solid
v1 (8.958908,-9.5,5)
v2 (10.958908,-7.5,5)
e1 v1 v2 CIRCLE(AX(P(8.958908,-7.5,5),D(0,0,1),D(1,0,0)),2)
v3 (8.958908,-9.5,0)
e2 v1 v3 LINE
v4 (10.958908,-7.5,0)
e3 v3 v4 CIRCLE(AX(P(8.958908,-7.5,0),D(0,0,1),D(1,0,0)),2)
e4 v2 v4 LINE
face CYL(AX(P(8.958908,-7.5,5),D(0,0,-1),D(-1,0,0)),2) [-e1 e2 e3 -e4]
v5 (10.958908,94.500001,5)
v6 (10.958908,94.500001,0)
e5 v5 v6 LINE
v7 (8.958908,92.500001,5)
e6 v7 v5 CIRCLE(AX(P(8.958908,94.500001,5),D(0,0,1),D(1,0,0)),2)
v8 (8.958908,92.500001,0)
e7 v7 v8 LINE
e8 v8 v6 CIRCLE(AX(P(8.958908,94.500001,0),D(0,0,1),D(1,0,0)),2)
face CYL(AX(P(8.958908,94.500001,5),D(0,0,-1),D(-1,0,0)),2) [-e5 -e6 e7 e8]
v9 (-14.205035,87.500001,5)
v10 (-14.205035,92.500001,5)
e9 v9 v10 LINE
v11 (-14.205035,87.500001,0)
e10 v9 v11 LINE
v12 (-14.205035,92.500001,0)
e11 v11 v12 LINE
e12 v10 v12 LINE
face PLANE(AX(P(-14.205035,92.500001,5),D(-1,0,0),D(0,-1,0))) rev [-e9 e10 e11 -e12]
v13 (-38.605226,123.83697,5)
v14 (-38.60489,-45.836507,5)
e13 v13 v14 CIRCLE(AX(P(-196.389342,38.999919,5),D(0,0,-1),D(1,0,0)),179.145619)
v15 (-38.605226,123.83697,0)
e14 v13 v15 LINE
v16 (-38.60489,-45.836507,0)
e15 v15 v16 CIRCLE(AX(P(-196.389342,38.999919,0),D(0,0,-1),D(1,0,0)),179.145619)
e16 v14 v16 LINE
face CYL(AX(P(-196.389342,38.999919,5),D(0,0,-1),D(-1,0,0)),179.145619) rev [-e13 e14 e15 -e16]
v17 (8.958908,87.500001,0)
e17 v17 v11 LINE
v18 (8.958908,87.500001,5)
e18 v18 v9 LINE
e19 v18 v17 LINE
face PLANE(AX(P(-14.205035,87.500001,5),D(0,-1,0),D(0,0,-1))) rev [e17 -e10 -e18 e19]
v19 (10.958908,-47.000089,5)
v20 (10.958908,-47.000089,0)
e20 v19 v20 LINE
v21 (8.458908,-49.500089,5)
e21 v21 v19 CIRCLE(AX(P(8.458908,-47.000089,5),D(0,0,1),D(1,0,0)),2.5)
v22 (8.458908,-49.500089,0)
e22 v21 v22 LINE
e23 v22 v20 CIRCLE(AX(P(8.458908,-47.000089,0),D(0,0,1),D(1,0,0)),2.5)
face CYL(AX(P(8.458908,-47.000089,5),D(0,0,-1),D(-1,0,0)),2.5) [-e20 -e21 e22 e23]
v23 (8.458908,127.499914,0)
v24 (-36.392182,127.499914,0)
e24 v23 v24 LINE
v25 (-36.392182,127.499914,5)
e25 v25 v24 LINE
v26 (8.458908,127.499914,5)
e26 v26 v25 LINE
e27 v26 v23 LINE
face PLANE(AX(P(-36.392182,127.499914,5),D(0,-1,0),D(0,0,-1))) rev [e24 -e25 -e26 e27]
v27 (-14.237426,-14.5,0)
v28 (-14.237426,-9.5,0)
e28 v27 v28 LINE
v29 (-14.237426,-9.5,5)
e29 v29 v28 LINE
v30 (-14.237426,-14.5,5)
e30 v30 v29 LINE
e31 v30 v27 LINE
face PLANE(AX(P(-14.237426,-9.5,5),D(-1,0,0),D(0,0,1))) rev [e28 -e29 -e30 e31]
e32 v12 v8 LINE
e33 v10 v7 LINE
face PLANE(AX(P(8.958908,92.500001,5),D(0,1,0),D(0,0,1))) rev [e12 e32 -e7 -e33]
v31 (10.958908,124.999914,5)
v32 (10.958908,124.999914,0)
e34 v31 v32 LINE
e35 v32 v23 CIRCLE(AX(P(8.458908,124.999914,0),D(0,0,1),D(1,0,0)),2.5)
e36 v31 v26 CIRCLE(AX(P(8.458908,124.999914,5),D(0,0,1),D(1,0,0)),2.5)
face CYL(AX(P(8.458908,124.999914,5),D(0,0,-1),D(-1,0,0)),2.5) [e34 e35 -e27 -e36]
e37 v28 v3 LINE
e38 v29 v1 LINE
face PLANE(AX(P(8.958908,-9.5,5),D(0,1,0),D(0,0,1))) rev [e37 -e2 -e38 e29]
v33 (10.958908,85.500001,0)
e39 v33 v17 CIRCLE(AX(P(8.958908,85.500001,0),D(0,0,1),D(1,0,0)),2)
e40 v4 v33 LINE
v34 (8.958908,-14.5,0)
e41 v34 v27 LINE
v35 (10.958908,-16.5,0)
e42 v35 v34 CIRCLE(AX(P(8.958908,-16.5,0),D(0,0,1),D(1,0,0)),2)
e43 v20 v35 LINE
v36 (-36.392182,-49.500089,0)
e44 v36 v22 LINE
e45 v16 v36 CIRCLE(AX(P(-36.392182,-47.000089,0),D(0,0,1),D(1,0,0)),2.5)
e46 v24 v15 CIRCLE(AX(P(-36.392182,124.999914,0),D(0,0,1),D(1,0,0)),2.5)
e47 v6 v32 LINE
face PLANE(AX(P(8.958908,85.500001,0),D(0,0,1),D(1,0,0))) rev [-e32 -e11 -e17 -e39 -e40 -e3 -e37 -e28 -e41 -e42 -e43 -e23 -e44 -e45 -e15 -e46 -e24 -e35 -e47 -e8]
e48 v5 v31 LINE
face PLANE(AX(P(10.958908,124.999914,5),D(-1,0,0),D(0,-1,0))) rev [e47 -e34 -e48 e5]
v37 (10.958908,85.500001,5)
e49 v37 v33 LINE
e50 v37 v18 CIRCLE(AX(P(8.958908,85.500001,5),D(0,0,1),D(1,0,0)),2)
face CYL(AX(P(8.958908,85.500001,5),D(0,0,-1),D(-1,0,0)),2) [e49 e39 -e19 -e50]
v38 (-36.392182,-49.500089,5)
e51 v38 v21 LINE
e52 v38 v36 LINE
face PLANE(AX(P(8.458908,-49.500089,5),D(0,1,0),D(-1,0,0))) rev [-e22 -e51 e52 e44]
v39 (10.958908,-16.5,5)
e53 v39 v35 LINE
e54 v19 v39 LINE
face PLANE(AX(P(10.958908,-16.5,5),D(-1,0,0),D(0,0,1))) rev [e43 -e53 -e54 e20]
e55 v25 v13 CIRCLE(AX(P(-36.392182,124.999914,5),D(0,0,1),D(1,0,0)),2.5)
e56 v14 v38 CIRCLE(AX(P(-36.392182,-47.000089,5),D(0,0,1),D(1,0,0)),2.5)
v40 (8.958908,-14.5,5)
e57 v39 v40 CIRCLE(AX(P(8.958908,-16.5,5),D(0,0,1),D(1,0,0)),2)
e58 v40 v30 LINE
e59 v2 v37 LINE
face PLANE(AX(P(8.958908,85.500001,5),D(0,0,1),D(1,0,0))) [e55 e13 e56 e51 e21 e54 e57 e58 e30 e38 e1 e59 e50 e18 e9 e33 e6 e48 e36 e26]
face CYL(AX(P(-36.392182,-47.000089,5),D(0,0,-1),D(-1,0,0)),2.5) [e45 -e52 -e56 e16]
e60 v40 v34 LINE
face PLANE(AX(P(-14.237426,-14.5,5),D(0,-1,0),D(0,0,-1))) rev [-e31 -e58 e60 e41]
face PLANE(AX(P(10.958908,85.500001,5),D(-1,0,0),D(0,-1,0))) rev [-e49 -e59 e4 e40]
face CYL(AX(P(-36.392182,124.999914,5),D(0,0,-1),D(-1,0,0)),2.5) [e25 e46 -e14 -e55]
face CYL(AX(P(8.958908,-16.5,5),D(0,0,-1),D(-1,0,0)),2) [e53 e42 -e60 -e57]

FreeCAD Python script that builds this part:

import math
import FreeCAD as App
import Part
import Sketcher

V = App.Vector

doc = App.newDocument("Part")
body = doc.addObject("PartDesign::Body", "Body")

# Sketch on XY plane
sketch1 = body.newObject("Sketcher::SketchObject", "Sketch")
sketch1.AttachmentSupport = (doc.getObject("XY_Plane"), [""])
sketch1.MapMode = "FlatFace"
sketch1.addGeometry([
    Part.LineSegment(V(-14.205035, 92.500001, 0), V(8.958908, 92.500001, 0)),  # 0
    Part.ArcOfCircle(Part.Circle(V(8.958908, 94.500001, 0), V(0, 0, 1), 2), math.radians(-90), math.radians(0)),  # 1
    Part.LineSegment(V(10.958908, 94.500001, 0), V(10.958908, 124.999914, 0)),  # 2
    Part.ArcOfCircle(Part.Circle(V(8.458908, 124.999914, 0), V(0, 0, 1), 2.5), math.radians(0), math.radians(90)),  # 3
    Part.LineSegment(V(8.458908, 127.499914, 0), V(-36.392182, 127.499914, 0)),  # 4
    Part.ArcOfCircle(Part.Circle(V(-36.392182, 124.999914, 0), V(0, 0, 1), 2.5), math.radians(90), math.radians(207.721706)),  # 5
    Part.ArcOfCircle(Part.Circle(V(-196.389342, 38.999919, 0), V(0, 0, 1), 179.145619), math.radians(-28.265716), math.radians(28.265942)),  # 6
    Part.ArcOfCircle(Part.Circle(V(-36.392182, -47.000089, 0), V(0, 0, 1), 2.5), math.radians(152.261777), math.radians(270)),  # 7
    Part.LineSegment(V(-36.392182, -49.500089, 0), V(8.458908, -49.500089, 0)),  # 8
    Part.ArcOfCircle(Part.Circle(V(8.458908, -47.000089, 0), V(0, 0, 1), 2.5), math.radians(-90), math.radians(0)),  # 9
    Part.LineSegment(V(10.958908, -47.000089, 0), V(10.958908, -16.5, 0)),  # 10
    Part.ArcOfCircle(Part.Circle(V(8.958908, -16.5, 0), V(0, 0, 1), 2), math.radians(0), math.radians(90)),  # 11
    Part.LineSegment(V(8.958908, -14.5, 0), V(-14.237426, -14.5, 0)),  # 12
    Part.LineSegment(V(-14.237426, -14.5, 0), V(-14.237426, -9.5, 0)),  # 13
    Part.LineSegment(V(-14.237426, -9.5, 0), V(8.958908, -9.5, 0)),  # 14
    Part.ArcOfCircle(Part.Circle(V(8.958908, -7.5, 0), V(0, 0, 1), 2), math.radians(-90), math.radians(0)),  # 15
    Part.LineSegment(V(10.958908, -7.5, 0), V(10.958908, 85.500001, 0)),  # 16
    Part.ArcOfCircle(Part.Circle(V(8.958908, 85.500001, 0), V(0, 0, 1), 2), math.radians(0), math.radians(90)),  # 17
    Part.LineSegment(V(8.958908, 87.500001, 0), V(-14.205035, 87.500001, 0)),  # 18
    Part.LineSegment(V(-14.205035, 87.500001, 0), V(-14.205035, 92.500001, 0)),  # 19
], False)
sketch1.addConstraint([
    Sketcher.Constraint("Tangent", 0, 2, 1, 1),
    Sketcher.Constraint("Tangent", 1, 2, 2, 1),
    Sketcher.Constraint("Tangent", 2, 2, 3, 1),
    Sketcher.Constraint("Tangent", 3, 2, 4, 1),
    Sketcher.Constraint("Tangent", 4, 2, 5, 1),
    Sketcher.Constraint("Coincident", 5, 2, 6, 2),
    Sketcher.Constraint("Coincident", 6, 1, 7, 1),
    Sketcher.Constraint("Tangent", 7, 2, 8, 1),
    Sketcher.Constraint("Tangent", 8, 2, 9, 1),
    Sketcher.Constraint("Tangent", 9, 2, 10, 1),
    Sketcher.Constraint("Tangent", 10, 2, 11, 1),
    Sketcher.Constraint("Tangent", 11, 2, 12, 1),
    Sketcher.Constraint("Coincident", 12, 2, 13, 1),
    Sketcher.Constraint("Coincident", 13, 2, 14, 1),
    Sketcher.Constraint("Tangent", 14, 2, 15, 1),
    Sketcher.Constraint("Tangent", 15, 2, 16, 1),
    Sketcher.Constraint("Tangent", 16, 2, 17, 1),
    Sketcher.Constraint("Tangent", 17, 2, 18, 1),
    Sketcher.Constraint("Coincident", 18, 2, 19, 1),
    Sketcher.Constraint("Coincident", 19, 2, 0, 1),
    Sketcher.Constraint("Horizontal", 0),
    Sketcher.Constraint("Vertical", 2),
    Sketcher.Constraint("Horizontal", 4),
    Sketcher.Constraint("Horizontal", 8),
    Sketcher.Constraint("Vertical", 10),
    Sketcher.Constraint("Horizontal", 12),
    Sketcher.Constraint("Vertical", 13),
    Sketcher.Constraint("Horizontal", 14),
    Sketcher.Constraint("Vertical", 16),
    Sketcher.Constraint("Horizontal", 18),
    Sketcher.Constraint("Vertical", 19),
    Sketcher.Constraint("Equal", 3, 5),
    Sketcher.Constraint("Equal", 5, 7),
    Sketcher.Constraint("Equal", 7, 9),
    Sketcher.Constraint("Equal", 1, 11),
    Sketcher.Constraint("Equal", 11, 15),
    Sketcher.Constraint("Equal", 15, 17),
    Sketcher.Constraint("Vertical", 5, 3, 7, 3),
    Sketcher.Constraint("Vertical", 3, 3, 9, 3),
    Sketcher.Constraint("Vertical", 11, 3, 15, 3),
    Sketcher.Constraint("Equal", 13, 19),
    Sketcher.Constraint("Radius", 1, 2.0),
    Sketcher.Constraint("Radius", 3, 2.5),
    Sketcher.Constraint("DistanceY", 13, 1, 13, 2, 5.0),
    Sketcher.Constraint("DistanceY", 16, 1, 16, 2, 93.000001),
    Sketcher.Constraint("DistanceY", -1, 1, 1, 3, 94.500001),
    Sketcher.Constraint("Radius", 6, 179.145619),
    Sketcher.Constraint("DistanceX", 4, 2, 4, 1, 44.85109),
    Sketcher.Constraint("DistanceY", 10, 1, 10, 2, 30.500089),
    Sketcher.Constraint("DistanceX", 6, 1, 9, 3, 47.063798),
    Sketcher.Constraint("DistanceX", 0, 1, 0, 2, 23.163943),
    Sketcher.Constraint("DistanceX", 12, 2, 12, 1, 23.196334),
    Sketcher.Constraint("DistanceY", 2, 1, 2, 2, 30.499912),
    Sketcher.Constraint("DistanceX", -1, 1, 1, 3, 8.958908),
    Sketcher.Constraint("DistanceY", -1, 1, 6, 3, 38.999919),
])
pad1 = body.newObject("PartDesign::Pad", "Pad")
pad1.Profile = sketch1
pad1.Length = 5

doc.recompute()
